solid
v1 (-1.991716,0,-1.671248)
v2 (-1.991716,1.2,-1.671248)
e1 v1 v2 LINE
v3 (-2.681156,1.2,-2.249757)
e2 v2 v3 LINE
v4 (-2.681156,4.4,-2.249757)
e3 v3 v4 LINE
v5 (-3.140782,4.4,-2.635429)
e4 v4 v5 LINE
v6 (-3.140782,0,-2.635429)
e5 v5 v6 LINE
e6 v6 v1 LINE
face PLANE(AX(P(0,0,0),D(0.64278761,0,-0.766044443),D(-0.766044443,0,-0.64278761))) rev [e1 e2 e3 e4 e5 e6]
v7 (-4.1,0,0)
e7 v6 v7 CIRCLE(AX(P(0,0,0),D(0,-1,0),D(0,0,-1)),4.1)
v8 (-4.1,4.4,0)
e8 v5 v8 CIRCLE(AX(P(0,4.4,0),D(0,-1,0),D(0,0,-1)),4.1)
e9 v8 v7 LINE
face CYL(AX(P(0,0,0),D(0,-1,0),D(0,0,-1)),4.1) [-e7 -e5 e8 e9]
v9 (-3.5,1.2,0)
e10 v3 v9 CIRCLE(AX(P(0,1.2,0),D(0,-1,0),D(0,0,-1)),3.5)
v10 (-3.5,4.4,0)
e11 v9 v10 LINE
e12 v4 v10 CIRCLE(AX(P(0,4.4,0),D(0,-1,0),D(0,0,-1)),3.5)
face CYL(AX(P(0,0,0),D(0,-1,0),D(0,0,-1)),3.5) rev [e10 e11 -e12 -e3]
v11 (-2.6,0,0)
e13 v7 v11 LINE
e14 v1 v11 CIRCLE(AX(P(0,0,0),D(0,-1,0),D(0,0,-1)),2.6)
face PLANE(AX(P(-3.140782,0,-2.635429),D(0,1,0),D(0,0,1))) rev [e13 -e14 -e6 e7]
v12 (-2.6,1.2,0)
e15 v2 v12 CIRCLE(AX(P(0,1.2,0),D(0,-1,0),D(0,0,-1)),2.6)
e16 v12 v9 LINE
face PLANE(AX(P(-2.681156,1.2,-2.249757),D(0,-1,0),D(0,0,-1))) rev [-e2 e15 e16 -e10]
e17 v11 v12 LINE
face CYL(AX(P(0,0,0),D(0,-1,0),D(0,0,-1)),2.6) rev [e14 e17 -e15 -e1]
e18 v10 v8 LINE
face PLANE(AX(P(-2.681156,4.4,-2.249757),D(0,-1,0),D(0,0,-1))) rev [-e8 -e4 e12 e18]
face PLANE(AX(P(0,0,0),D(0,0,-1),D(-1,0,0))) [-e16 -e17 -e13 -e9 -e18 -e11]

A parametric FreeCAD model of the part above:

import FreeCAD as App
import Part
import Sketcher
from FreeCAD import Vector


def add_polygon(sketch, points):
    """Adds a closed chain of lines whose ends are joined by coincident constraints."""
    first, n = sketch.GeometryCount, len(points)
    for a, b in zip(points, points[1:] + points[:1]):
        sketch.addGeometry(Part.LineSegment(App.Vector(*a, 0), App.Vector(*b, 0)), False)
    for i in range(n):
        sketch.addConstraint(Sketcher.Constraint("Coincident", first + i, 2, first + (i + 1) % n, 1))

doc = App.newDocument("Part")
body = doc.addObject("PartDesign::Body", "Body")

sketch1 = doc.addObject("Sketcher::SketchObject", "Sketch")
body.addObject(sketch1)
sketch1.AttachmentSupport = (doc.XY_Plane, [""])
sketch1.MapMode = "FlatFace"
add_polygon(sketch1, [(-3.5, 1.2), (-3.5, 4.4), (-4.1, 4.4), (-4.1, 0), (-2.6, 0), (-2.6, 1.2)])
sketch1.addConstraint(Sketcher.Constraint("Vertical", 0))
sketch1.addConstraint(Sketcher.Constraint("Horizontal", 1))
sketch1.addConstraint(Sketcher.Constraint("Vertical", 2))
sketch1.addConstraint(Sketcher.Constraint("Horizontal", 3))
sketch1.addConstraint(Sketcher.Constraint("Vertical", 4))
sketch1.addConstraint(Sketcher.Constraint("Horizontal", 5))
sketch1.addConstraint(Sketcher.Constraint("PointOnObject", 2, 2, -1))
sketch1.addConstraint(Sketcher.Constraint("DistanceX", 1, 2, 1, 1, 0.6))
sketch1.addConstraint(Sketcher.Constraint("DistanceX", 3, 1, 3, 2, 1.5))
sketch1.addConstraint(Sketcher.Constraint("DistanceY", 0, 1, 0, 2, 3.2))
sketch1.addConstraint(Sketcher.Constraint("DistanceY", 2, 2, 2, 1, 4.4))
sketch1.addConstraint(Sketcher.Constraint("DistanceX", 0, 2, -1, 1, 3.5))
revolution = doc.addObject("PartDesign::Revolution", "Revolution")
body.addObject(revolution)
revolution.Profile = sketch1
revolution.ReferenceAxis = (sketch1, ["V_Axis"])
revolution.Angle = 320

doc.recompute()
